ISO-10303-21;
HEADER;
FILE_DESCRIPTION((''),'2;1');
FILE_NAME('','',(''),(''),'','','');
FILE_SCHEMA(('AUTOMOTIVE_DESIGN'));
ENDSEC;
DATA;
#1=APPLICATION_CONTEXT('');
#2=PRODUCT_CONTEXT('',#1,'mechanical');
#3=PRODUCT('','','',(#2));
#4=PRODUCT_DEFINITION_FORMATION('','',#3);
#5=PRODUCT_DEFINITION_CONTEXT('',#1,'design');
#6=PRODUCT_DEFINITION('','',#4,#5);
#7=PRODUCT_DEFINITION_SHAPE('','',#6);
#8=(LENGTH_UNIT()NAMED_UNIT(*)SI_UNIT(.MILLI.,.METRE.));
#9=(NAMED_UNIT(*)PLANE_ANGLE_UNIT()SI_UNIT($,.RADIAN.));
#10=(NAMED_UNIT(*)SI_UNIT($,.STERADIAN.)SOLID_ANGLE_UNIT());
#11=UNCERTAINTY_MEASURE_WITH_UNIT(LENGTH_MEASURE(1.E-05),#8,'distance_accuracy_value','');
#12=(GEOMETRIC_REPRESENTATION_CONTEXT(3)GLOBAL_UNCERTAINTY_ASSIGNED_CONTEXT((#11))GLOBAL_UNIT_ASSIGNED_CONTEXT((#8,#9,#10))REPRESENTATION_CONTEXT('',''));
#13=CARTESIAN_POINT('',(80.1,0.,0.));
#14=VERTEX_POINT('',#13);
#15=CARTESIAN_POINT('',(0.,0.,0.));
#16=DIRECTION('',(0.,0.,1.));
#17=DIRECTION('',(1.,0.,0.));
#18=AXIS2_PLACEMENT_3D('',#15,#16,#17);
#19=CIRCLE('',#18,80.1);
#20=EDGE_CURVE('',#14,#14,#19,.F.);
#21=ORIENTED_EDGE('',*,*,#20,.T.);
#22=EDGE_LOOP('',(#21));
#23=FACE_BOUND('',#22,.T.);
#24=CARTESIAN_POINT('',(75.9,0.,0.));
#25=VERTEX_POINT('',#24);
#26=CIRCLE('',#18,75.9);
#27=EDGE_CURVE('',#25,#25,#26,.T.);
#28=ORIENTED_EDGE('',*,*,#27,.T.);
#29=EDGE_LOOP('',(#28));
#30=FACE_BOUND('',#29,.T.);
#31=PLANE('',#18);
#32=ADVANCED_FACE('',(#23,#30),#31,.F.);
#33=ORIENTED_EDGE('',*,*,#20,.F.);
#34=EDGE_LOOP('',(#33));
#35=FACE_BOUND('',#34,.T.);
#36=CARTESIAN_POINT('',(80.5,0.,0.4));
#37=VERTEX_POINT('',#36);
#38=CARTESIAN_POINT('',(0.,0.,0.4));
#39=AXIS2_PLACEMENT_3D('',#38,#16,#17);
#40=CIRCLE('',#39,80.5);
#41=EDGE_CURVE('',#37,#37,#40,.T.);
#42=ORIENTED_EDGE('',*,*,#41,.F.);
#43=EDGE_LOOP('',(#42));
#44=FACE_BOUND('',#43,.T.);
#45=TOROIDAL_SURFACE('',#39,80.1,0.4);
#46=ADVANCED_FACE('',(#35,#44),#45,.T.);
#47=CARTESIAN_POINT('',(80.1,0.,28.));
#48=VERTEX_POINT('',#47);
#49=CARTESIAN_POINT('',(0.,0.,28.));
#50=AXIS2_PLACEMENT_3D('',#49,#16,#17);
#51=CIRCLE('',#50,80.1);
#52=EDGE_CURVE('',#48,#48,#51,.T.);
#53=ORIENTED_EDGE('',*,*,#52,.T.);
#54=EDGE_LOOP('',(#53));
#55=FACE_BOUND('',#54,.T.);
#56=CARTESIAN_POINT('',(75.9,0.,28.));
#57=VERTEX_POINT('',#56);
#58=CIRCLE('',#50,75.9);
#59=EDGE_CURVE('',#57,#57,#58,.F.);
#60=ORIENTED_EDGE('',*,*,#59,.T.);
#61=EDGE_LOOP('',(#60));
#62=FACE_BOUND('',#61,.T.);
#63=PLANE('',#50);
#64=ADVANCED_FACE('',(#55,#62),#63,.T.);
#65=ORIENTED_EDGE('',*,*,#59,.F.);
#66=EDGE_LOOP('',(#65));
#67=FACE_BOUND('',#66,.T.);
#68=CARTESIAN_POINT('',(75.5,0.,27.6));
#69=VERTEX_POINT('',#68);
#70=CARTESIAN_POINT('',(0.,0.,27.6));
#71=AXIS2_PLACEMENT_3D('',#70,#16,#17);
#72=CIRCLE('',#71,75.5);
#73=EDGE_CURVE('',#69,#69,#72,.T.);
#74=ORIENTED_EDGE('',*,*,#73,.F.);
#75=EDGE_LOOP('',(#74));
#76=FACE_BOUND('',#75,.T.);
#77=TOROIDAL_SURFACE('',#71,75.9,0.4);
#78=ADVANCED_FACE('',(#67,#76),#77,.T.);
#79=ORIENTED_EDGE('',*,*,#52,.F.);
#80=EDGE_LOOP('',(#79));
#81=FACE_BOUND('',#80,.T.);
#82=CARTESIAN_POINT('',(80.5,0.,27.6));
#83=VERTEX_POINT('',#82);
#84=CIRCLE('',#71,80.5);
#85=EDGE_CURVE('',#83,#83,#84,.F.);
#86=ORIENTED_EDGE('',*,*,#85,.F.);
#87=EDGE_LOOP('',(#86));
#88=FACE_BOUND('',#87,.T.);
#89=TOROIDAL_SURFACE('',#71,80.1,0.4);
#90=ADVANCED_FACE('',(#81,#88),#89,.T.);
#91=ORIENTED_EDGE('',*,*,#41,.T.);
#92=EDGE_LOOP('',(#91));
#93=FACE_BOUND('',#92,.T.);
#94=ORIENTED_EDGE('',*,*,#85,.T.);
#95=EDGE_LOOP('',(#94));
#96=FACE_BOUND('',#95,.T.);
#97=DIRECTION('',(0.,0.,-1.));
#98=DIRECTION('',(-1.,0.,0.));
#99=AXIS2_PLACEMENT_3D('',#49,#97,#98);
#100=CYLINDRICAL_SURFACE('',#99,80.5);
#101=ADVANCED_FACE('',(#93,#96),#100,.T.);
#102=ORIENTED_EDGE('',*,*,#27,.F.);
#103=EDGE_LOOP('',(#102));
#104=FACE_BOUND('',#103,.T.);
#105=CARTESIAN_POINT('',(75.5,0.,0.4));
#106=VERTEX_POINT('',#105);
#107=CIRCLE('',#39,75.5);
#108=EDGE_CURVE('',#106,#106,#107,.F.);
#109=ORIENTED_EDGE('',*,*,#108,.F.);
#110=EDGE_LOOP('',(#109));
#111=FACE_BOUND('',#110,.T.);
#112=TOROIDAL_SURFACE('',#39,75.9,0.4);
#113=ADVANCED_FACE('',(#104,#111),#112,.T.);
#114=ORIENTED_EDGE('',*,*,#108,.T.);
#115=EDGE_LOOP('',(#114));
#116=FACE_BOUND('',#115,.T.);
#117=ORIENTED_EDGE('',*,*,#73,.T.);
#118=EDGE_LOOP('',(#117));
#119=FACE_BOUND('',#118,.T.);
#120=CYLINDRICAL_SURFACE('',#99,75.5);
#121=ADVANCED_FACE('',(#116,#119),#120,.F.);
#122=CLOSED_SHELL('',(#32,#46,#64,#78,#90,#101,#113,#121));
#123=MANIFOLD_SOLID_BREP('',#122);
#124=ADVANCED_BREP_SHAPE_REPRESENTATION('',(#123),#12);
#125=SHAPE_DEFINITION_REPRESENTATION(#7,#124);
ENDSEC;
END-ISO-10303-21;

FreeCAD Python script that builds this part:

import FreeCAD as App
import Part
import Sketcher

V = App.Vector
Q = App.Units.Quantity


def edges_at(feature, points):
    """Names of the edges that pass closest to the given points."""
    edges = feature.Shape.Edges
    near = lambda p: min(range(len(edges)), key=lambda i: edges[i].distToShape(Part.Vertex(*p))[0])
    return sorted({f"Edge{near(p) + 1}" for p in points})

doc = App.newDocument("Part")
body = doc.addObject("PartDesign::Body", "Body")

# Sketch on XY plane
sketch1 = doc.addObject("Sketcher::SketchObject", "Sketch")
body.addObject(sketch1)
sketch1.AttachmentSupport = (doc.XY_Plane, [""])
sketch1.MapMode = "FlatFace"
sketch1.addGeometry([
    Part.Circle(V(0, 0, 0), V(0, 0, 1), 80),
    Part.Circle(V(0, 0, 0), V(0, 0, 1), 76),
], False)
sketch1.addConstraint([
    Sketcher.Constraint("Coincident", 0, 3, -1, 1),
    Sketcher.Constraint("Coincident", 1, 3, -1, 1),
    Sketcher.Constraint("Diameter", 0, Q("161 mm")),
    Sketcher.Constraint("Diameter", 1, Q("151 mm")),
])
pad1 = doc.addObject("PartDesign::Pad", "Pad")
body.addObject(pad1)
pad1.Profile = sketch1
pad1.Length = 28
doc.recompute()

fillet = doc.addObject("PartDesign::Fillet", "Fillet")
body.addObject(fillet)
fillet.Base = (pad1, edges_at(pad1, [
    (-80.5, 0, 0),
    (-80.5, 0, 28),
    (-75.5, 0, 0),
    (-75.5, 0, 28),
]))
fillet.Radius = 0.4

doc.recompute()
